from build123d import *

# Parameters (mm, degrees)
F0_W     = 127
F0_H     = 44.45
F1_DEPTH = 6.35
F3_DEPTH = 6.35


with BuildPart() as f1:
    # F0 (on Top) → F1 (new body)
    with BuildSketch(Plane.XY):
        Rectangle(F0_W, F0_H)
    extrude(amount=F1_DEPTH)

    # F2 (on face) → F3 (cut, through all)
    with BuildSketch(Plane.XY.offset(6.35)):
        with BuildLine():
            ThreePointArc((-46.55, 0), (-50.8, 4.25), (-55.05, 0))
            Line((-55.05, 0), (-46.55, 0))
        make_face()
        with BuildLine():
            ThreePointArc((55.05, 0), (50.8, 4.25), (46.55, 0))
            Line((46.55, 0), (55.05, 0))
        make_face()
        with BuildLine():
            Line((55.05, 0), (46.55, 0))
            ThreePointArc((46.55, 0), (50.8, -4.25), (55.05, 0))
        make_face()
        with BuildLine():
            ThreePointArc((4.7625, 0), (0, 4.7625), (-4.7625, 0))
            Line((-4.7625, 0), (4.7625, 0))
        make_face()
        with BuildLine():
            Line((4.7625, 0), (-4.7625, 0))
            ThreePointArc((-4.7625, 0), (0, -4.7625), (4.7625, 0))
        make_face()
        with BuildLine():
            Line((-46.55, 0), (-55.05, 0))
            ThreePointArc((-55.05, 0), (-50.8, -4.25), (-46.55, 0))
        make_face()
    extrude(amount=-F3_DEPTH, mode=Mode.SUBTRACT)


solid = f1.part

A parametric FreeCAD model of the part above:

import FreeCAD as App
import Part
import Sketcher
from FreeCAD import Vector
Q = App.Units.Quantity

doc = App.newDocument("Part")
params = doc.addObject("Spreadsheet::Sheet", "Params")
for row, (alias, value) in enumerate([
    ("sketch1_width", "5 in"),
    ("sketch1_height", "1.75 in"),
    ("pad1_length", "0.25 in"),
    ("sketch2_diameter", "0.375 in"),
], start=1):
    params.set(f"A{row}", alias)
    params.set(f"B{row}", "=" + value)
    params.setAlias(f"B{row}", alias)

body = doc.addObject("PartDesign::Body", "Body")

# Sketch on XY plane
sketch1 = body.newObject("Sketcher::SketchObject", "Sketch")
sketch1.AttachmentSupport = (doc.getObject("XY_Plane"), [""])
sketch1.MapMode = "FlatFace"
sketch1.addGeometry([
    Part.LineSegment(Vector(-64, 22, 0), Vector(-64, -22, 0)),
    Part.LineSegment(Vector(-64, -22, 0), Vector(64, -22, 0)),
    Part.LineSegment(Vector(64, -22, 0), Vector(64, 22, 0)),
    Part.LineSegment(Vector(64, 22, 0), Vector(-64, 22, 0)),
], False)
sketch1.addConstraint([
    Sketcher.Constraint("Coincident", 0, 2, 1, 1),
    Sketcher.Constraint("Coincident", 1, 2, 2, 1),
    Sketcher.Constraint("Coincident", 2, 2, 3, 1),
    Sketcher.Constraint("Coincident", 3, 2, 0, 1),
    Sketcher.Constraint("Vertical", 0),
    Sketcher.Constraint("Horizontal", 1),
    Sketcher.Constraint("Vertical", 2),
    Sketcher.Constraint("Horizontal", 3),
    Sketcher.Constraint("Symmetric", 0, 2, 2, 2, -1, 1),
    Sketcher.Constraint("DistanceX", 1, 1, 1, 2, Q("5 in")),
    Sketcher.Constraint("DistanceY", 0, 2, 0, 1, Q("1.75 in")),
])
sketch1.setExpression("Constraints[9]", "Params.sketch1_width")
sketch1.setExpression("Constraints[10]", "Params.sketch1_height")
pad1 = body.newObject("PartDesign::Pad", "Pad")
pad1.Profile = sketch1
pad1.setExpression("Length", "Params.pad1_length")

# Sketch on XY plane
sketch2 = body.newObject("Sketcher::SketchObject", "Sketch001")
sketch2.AttachmentSupport = (doc.getObject("XY_Plane"), [""])
sketch2.MapMode = "FlatFace"
sketch2.AttachmentOffset = App.Placement(Vector(0, 0, 0.25 * 25.4), App.Rotation())
sketch2.addGeometry([
    Part.Circle(Vector(-50.8, 0, 0), Vector(0, 0, 1), 4.2),
    Part.Circle(Vector(50.8, 0, 0), Vector(0, 0, 1), 4.2),
    Part.Circle(Vector(0, 0, 0), Vector(0, 0, 1), 4.8),
], False)
sketch2.addConstraint([
    Sketcher.Constraint("Coincident", 2, 3, -1, 1),
    Sketcher.Constraint("Equal", 0, 1),
    Sketcher.Constraint("Symmetric", 0, 3, 1, 3, -1, 1),
    Sketcher.Constraint("PointOnObject", 0, 3, -1),
    Sketcher.Constraint("Diameter", 2, Q("0.375 in")),
    Sketcher.Constraint("DistanceX", 0, 3, -1, 1, Q("2 in")),
    Sketcher.Constraint("Diameter", 0, 8.5),
])
sketch2.setExpression("Constraints[4]", "Params.sketch2_diameter")
pocket1 = body.newObject("PartDesign::Pocket", "Pocket")
pocket1.Profile = sketch2
pocket1.Type = "ThroughAll"

doc.recompute()
